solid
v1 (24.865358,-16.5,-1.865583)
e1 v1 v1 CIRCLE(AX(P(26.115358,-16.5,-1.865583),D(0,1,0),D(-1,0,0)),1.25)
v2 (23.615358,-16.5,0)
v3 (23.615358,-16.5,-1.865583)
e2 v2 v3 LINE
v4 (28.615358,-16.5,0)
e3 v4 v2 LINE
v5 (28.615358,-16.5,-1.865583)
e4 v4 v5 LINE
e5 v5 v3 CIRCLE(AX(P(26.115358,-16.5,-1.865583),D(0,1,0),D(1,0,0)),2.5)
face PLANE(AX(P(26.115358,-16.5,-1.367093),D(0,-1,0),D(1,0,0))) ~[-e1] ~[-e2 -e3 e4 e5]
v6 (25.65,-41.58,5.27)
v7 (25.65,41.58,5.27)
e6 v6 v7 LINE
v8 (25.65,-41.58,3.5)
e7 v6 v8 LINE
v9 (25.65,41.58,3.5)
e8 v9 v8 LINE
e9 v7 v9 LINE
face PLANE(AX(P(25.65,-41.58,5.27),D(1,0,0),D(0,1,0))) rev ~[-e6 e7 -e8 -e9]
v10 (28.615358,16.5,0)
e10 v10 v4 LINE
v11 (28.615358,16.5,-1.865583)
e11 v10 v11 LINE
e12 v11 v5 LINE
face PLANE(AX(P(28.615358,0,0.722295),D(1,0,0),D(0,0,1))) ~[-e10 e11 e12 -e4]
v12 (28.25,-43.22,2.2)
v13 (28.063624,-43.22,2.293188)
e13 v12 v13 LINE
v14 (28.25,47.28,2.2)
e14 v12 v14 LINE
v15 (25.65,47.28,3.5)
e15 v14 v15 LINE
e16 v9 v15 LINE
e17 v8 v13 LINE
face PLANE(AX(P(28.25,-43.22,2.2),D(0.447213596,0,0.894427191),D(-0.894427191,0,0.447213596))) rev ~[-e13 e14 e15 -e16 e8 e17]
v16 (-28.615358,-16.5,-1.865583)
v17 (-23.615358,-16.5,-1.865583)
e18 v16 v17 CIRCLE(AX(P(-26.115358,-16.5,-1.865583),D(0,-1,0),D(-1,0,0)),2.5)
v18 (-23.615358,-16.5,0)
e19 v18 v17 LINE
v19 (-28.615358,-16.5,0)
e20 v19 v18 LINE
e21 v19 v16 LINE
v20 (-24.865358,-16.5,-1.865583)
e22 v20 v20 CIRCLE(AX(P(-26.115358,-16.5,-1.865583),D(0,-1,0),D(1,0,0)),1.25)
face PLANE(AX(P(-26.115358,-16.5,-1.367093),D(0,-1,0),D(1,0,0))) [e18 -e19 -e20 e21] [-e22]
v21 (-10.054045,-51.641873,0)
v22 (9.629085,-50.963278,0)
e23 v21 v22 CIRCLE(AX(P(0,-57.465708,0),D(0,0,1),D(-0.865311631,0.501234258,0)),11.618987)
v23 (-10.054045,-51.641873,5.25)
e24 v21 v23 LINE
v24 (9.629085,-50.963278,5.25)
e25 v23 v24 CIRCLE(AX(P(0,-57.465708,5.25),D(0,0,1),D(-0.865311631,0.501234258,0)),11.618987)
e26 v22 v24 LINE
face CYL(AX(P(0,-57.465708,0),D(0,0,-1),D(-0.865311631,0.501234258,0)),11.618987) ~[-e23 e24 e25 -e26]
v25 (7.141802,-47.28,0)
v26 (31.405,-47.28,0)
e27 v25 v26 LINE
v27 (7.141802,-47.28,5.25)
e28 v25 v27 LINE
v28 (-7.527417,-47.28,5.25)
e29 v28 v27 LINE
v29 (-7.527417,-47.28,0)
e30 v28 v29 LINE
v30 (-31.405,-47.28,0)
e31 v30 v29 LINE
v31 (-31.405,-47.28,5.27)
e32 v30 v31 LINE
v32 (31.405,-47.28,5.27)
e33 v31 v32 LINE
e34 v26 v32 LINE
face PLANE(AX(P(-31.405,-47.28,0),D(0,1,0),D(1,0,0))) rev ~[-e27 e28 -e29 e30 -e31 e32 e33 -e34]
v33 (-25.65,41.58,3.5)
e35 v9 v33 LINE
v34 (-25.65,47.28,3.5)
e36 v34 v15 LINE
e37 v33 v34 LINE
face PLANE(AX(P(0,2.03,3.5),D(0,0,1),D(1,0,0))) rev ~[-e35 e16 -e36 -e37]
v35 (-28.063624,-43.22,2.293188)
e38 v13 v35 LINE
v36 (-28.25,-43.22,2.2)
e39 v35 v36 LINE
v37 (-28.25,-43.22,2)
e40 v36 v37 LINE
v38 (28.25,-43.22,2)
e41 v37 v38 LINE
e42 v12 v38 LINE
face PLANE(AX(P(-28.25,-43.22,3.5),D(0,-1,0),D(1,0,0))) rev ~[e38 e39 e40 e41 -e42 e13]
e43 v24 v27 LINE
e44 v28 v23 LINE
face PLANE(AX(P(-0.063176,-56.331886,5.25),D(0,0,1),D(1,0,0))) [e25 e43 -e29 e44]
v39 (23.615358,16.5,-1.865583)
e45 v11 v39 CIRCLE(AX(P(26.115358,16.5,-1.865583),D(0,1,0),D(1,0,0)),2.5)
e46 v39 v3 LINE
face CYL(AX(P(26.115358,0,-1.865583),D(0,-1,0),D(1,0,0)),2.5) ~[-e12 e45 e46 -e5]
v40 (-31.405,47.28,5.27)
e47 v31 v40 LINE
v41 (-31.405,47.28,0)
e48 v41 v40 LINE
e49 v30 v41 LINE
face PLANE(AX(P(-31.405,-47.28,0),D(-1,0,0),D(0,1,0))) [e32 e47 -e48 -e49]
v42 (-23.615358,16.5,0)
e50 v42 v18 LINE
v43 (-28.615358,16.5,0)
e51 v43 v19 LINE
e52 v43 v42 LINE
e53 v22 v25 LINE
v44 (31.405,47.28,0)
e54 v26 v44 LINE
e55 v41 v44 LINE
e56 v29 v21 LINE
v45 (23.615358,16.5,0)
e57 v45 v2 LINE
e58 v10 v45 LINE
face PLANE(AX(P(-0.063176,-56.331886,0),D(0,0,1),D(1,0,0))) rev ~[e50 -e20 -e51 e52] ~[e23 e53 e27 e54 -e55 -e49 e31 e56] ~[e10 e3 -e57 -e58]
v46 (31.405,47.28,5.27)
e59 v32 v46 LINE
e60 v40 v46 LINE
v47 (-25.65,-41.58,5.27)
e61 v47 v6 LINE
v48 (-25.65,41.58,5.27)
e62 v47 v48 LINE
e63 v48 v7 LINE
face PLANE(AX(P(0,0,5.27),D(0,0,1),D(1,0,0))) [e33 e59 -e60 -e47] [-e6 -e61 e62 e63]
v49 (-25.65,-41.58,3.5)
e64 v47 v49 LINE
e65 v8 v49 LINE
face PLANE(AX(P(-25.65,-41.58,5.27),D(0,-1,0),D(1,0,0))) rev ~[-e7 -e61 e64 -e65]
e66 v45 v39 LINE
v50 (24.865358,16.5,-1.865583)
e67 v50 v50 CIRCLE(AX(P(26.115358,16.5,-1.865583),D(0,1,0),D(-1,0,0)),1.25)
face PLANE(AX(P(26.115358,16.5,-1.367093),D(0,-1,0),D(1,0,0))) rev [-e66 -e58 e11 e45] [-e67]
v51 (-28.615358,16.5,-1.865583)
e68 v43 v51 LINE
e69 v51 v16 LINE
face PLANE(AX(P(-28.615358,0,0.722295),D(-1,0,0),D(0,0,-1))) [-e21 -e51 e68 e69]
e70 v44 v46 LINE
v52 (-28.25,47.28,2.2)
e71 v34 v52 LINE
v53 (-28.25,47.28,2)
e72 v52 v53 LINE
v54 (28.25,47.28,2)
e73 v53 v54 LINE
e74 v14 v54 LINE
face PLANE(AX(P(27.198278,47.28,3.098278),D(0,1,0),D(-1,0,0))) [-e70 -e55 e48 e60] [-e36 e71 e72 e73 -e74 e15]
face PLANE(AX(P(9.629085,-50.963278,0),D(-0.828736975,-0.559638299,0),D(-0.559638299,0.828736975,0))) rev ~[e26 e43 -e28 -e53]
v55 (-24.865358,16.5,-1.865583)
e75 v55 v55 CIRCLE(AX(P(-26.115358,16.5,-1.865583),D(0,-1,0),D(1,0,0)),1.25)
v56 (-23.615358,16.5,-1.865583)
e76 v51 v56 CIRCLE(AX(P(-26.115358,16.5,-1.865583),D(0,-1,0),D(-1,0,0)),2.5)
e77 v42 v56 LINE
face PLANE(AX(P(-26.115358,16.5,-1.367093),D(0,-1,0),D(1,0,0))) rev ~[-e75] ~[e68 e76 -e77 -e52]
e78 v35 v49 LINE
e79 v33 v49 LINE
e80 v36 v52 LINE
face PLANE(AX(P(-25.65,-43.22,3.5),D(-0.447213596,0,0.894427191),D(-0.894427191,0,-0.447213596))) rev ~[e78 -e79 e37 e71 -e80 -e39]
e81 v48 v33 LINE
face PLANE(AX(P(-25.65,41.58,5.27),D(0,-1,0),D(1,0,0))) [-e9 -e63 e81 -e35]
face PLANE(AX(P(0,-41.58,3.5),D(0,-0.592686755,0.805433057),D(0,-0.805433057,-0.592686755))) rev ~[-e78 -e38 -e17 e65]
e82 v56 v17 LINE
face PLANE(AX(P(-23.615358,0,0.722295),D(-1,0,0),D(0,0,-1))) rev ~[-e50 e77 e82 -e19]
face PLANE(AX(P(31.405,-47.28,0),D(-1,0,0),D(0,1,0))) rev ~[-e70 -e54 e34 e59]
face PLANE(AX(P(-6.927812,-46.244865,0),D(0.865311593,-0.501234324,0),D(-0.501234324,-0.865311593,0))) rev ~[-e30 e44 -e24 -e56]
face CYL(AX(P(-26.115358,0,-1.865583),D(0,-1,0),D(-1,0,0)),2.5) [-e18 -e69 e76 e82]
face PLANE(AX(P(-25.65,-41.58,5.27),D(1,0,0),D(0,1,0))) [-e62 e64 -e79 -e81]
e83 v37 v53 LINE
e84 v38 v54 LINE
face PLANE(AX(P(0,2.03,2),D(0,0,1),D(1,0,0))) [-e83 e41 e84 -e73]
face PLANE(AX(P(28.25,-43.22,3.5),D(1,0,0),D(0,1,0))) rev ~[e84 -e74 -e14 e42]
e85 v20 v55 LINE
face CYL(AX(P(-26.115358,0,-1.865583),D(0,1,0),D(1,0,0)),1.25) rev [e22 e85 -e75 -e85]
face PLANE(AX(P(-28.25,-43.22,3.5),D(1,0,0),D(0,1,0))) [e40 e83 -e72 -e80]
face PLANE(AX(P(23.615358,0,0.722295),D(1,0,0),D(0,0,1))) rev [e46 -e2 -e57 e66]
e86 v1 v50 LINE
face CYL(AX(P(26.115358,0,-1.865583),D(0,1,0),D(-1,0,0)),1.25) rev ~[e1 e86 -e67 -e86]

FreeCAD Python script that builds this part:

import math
import FreeCAD as App
import Part
import Sketcher

V = App.Vector
Q = App.Units.Quantity


def add_polygon(sketch, points):
    """Adds a closed chain of lines whose ends are joined by coincident constraints."""
    first, n = sketch.GeometryCount, len(points)
    for a, b in zip(points, points[1:] + points[:1]):
        sketch.addGeometry(Part.LineSegment(App.Vector(*a, 0), App.Vector(*b, 0)), False)
    for i in range(n):
        sketch.addConstraint(Sketcher.Constraint("Coincident", first + i, 2, first + (i + 1) % n, 1))

doc = App.newDocument("Part")
params = doc.addObject("Spreadsheet::Sheet", "Params")
for row, (alias, value) in enumerate([
    ("sketch1_width", "62.81 mm"),
    ("sketch1_height", "94.56 mm"),
    ("pad1_length", "5.27 mm"),
    ("sketch2_width", "51.3 mm"),
    ("sketch2_height", "83.16 mm"),
    ("pocket1_length", "3.27 mm"),
    ("sketch3_width", "56.5 mm"),
    ("sketch3_height", "90.5 mm"),
    ("pocket2_length", "1.5 mm"),
    ("sketch4_width", "2.6 mm"),
    ("sketch4_height", "1.3 mm"),
    ("pad2_length", "90.5 mm"),
    ("sketch5_width", "2.6 mm"),
    ("sketch5_height", "1.3 mm"),
    ("pad3_length", "90.5 mm"),
    ("sketch6_width", "1.64 mm"),
    ("pad4_length", "57 mm"),
    ("sketch7_diameter", "2.5 mm"),
    ("sketch7_radius", "2.5 mm"),
    ("pad5_length", "33 mm"),
    ("pad6_length", "5.25 mm"),
], start=1):
    params.set(f"A{row}", alias)
    params.set(f"B{row}", "=" + value)
    params.setAlias(f"B{row}", alias)

body = doc.addObject("PartDesign::Body", "Body")

# Sketch on XY plane
sketch1 = doc.addObject("Sketcher::SketchObject", "Sketch")
body.addObject(sketch1)
sketch1.AttachmentSupport = (doc.XY_Plane, [""])
sketch1.MapMode = "FlatFace"
add_polygon(sketch1, [(-31, 47), (-31, -47), (31, -47), (31, 47)])  # lines 0-3
sketch1.addConstraint([
    Sketcher.Constraint("Vertical", 0),
    Sketcher.Constraint("Horizontal", 1),
    Sketcher.Constraint("Vertical", 2),
    Sketcher.Constraint("Horizontal", 3),
    Sketcher.Constraint("Symmetric", 0, 2, 2, 2, -1, 1),
    Sketcher.Constraint("DistanceX", 1, 1, 1, 2, Q("62.81 mm")),
    Sketcher.Constraint("DistanceY", 0, 2, 0, 1, Q("94.56 mm")),
])
sketch1.setExpression("Constraints[9]", "Params.sketch1_width")
sketch1.setExpression("Constraints[10]", "Params.sketch1_height")
pad1 = doc.addObject("PartDesign::Pad", "Pad")
body.addObject(pad1)
pad1.Profile = sketch1
pad1.setExpression("Length", "Params.pad1_length")

# Sketch on XY plane
sketch2 = doc.addObject("Sketcher::SketchObject", "Sketch001")
body.addObject(sketch2)
sketch2.AttachmentSupport = (doc.XY_Plane, [""])
sketch2.MapMode = "FlatFace"
sketch2.AttachmentOffset = App.Placement(V(0, 0, 5.27), App.Rotation())
add_polygon(sketch2, [(-26, 42), (-26, -42), (26, -42), (26, 42)])  # lines 0-3
sketch2.addConstraint([
    Sketcher.Constraint("Vertical", 0),
    Sketcher.Constraint("Horizontal", 1),
    Sketcher.Constraint("Vertical", 2),
    Sketcher.Constraint("Horizontal", 3),
    Sketcher.Constraint("Symmetric", 0, 2, 2, 2, -1, 1),
    Sketcher.Constraint("DistanceX", 1, 1, 1, 2, Q("51.3 mm")),
    Sketcher.Constraint("DistanceY", 0, 2, 0, 1, Q("83.16 mm")),
])
sketch2.setExpression("Constraints[9]", "Params.sketch2_width")
sketch2.setExpression("Constraints[10]", "Params.sketch2_height")
pocket1 = doc.addObject("PartDesign::Pocket", "Pocket")
body.addObject(pocket1)
pocket1.Profile = sketch2
pocket1.setExpression("Length", "Params.pocket1_length")

# Sketch on XY plane
sketch3 = doc.addObject("Sketcher::SketchObject", "Sketch002")
body.addObject(sketch3)
sketch3.AttachmentSupport = (doc.XY_Plane, [""])
sketch3.MapMode = "FlatFace"
sketch3.AttachmentOffset = App.Placement(V(0, 0, 3.5), App.Rotation())
add_polygon(sketch3, [(-28, 47), (-28, -43), (28, -43), (28, 47)])  # lines 0-3
sketch3.addConstraint([
    Sketcher.Constraint("Vertical", 0),
    Sketcher.Constraint("Horizontal", 1),
    Sketcher.Constraint("Vertical", 2),
    Sketcher.Constraint("Horizontal", 3),
    Sketcher.Constraint("DistanceX", 1, 1, 1, 2, Q("56.5 mm")),
    Sketcher.Constraint("DistanceY", 0, 2, 0, 1, Q("90.5 mm")),
    Sketcher.Constraint("DistanceX", 0, 2, -1, 1, Q("28.25 mm")),
    Sketcher.Constraint("DistanceY", 0, 2, -1, 1, Q("43.22 mm")),
])
sketch3.setExpression("Constraints[8]", "Params.sketch3_width")
sketch3.setExpression("Constraints[9]", "Params.sketch3_height")
pocket2 = doc.addObject("PartDesign::Pocket", "Pocket001")
body.addObject(pocket2)
pocket2.Profile = sketch3
pocket2.setExpression("Length", "Params.pocket2_length")

# Sketch on XZ plane
sketch4 = doc.addObject("Sketcher::SketchObject", "Sketch003")
body.addObject(sketch4)
sketch4.AttachmentSupport = (doc.XZ_Plane, [""])
sketch4.MapMode = "FlatFace"
sketch4.AttachmentOffset = App.Placement(V(0, 0, 43.22), App.Rotation())
add_polygon(sketch4, [(-28.2, 2.2), (-25.6, 3.5), (-28.2, 3.5)])  # lines 0-2
sketch4.addConstraint([
    Sketcher.Constraint("Horizontal", 1),
    Sketcher.Constraint("Vertical", 2),
    Sketcher.Constraint("DistanceX", 1, 2, 1, 1, Q("2.6 mm")),
    Sketcher.Constraint("DistanceY", 2, 2, 2, 1, Q("1.3 mm")),
    Sketcher.Constraint("DistanceY", -1, 1, 0, 2, Q("3.5 mm")),
    Sketcher.Constraint("DistanceX", 0, 2, -1, 1, Q("25.65 mm")),
])
sketch4.setExpression("Constraints[5]", "Params.sketch4_width")
sketch4.setExpression("Constraints[6]", "Params.sketch4_height")
pad2 = doc.addObject("PartDesign::Pad", "Pad001")
body.addObject(pad2)
pad2.Profile = sketch4
pad2.setExpression("Length", "Params.pad2_length")
pad2.Reversed = True

# Sketch on XZ plane
sketch5 = doc.addObject("Sketcher::SketchObject", "Sketch004")
body.addObject(sketch5)
sketch5.AttachmentSupport = (doc.XZ_Plane, [""])
sketch5.MapMode = "FlatFace"
sketch5.AttachmentOffset = App.Placement(V(0, 0, 43.22), App.Rotation())
add_polygon(sketch5, [(28.2, 3.5), (25.6, 3.5), (28.2, 2.2)])  # lines 0-2
sketch5.addConstraint([
    Sketcher.Constraint("Horizontal", 0),
    Sketcher.Constraint("Vertical", 2),
    Sketcher.Constraint("DistanceX", 0, 2, 0, 1, Q("2.6 mm")),
    Sketcher.Constraint("DistanceY", 2, 1, 2, 2, Q("1.3 mm")),
    Sketcher.Constraint("DistanceY", -1, 1, 0, 2, Q("3.5 mm")),
    Sketcher.Constraint("DistanceX", -1, 1, 0, 2, Q("25.65 mm")),
])
sketch5.setExpression("Constraints[5]", "Params.sketch5_width")
sketch5.setExpression("Constraints[6]", "Params.sketch5_height")
pad3 = doc.addObject("PartDesign::Pad", "Pad002")
body.addObject(pad3)
pad3.Profile = sketch5
pad3.setExpression("Length", "Params.pad3_length")
pad3.Reversed = True

# Sketch on YZ plane
sketch6 = doc.addObject("Sketcher::SketchObject", "Sketch005")
body.addObject(sketch6)
sketch6.AttachmentSupport = (doc.YZ_Plane, [""])
sketch6.MapMode = "FlatFace"
add_polygon(sketch6, [(-43.2, 2.3), (-41.6, 3.5), (-43.2, 3.5)])  # lines 0-2
sketch6.addConstraint([
    Sketcher.Constraint("Horizontal", 1),
    Sketcher.Constraint("Vertical", 2),
    Sketcher.Constraint("DistanceX", 1, 2, 1, 1, Q("1.64 mm")),
    Sketcher.Constraint("DistanceY", -1, 1, 0, 2, Q("3.5 mm")),
    Sketcher.Constraint("DistanceX", 0, 2, -1, 1, Q("41.58 mm")),
    Sketcher.Constraint("Distance", 0, Q("2.036172 mm")),
])
sketch6.setExpression("Constraints[5]", "Params.sketch6_width")
pad4 = doc.addObject("PartDesign::Pad", "Pad003")
body.addObject(pad4)
pad4.Profile = sketch6
pad4.setExpression("Length", "Params.pad4_length")
pad4.Midplane = True

# Sketch on XZ plane
sketch7 = doc.addObject("Sketcher::SketchObject", "Sketch006")
body.addObject(sketch7)
sketch7.AttachmentSupport = (doc.XZ_Plane, [""])
sketch7.MapMode = "FlatFace"
sketch7.addGeometry([
    Part.LineSegment(V(-28.6, 0.7, 0), V(-28.6, -1.9, 0)),  # 0
    Part.ArcOfCircle(Part.Circle(V(-26.1, -1.9, 0), V(0, 0, 1), 2.5), math.radians(180), math.radians(360)),  # 1
    Part.LineSegment(V(-23.6, -1.9, 0), V(-23.6, 0.7, 0)),  # 2
    Part.LineSegment(V(-23.6, 0.7, 0), V(-28.6, 0.7, 0)),  # 3
    Part.Circle(V(-26.1, -1.9, 0), V(0, 0, 1), 1.2),  # 4
], False)
sketch7.addConstraint([
    Sketcher.Constraint("Tangent", 0, 2, 1, 1),
    Sketcher.Constraint("Tangent", 1, 2, 2, 1),
    Sketcher.Constraint("Coincident", 2, 2, 3, 1),
    Sketcher.Constraint("Coincident", 3, 2, 0, 1),
    Sketcher.Constraint("Vertical", 0),
    Sketcher.Constraint("Vertical", 2),
    Sketcher.Constraint("Horizontal", 3),
    Sketcher.Constraint("Coincident", 4, 3, 1, 3),
    Sketcher.Constraint("Diameter", 4, Q("2.5 mm")),
    Sketcher.Constraint("Radius", 1, Q("2.5 mm")),
    Sketcher.Constraint("DistanceY", 0, 2, 0, 1, Q("2.587878 mm")),
    Sketcher.Constraint("DistanceX", 1, 3, -1, 1, Q("26.115358 mm")),
    Sketcher.Constraint("DistanceY", 1, 3, -1, 1, Q("1.865583 mm")),
])
sketch7.setExpression("Constraints[8]", "Params.sketch7_diameter")
sketch7.setExpression("Constraints[9]", "Params.sketch7_radius")
pad5 = doc.addObject("PartDesign::Pad", "Pad004")
body.addObject(pad5)
pad5.Profile = sketch7
pad5.setExpression("Length", "Params.pad5_length")
pad5.Midplane = True

# Sketch on XY plane
sketch8 = doc.addObject("Sketcher::SketchObject", "Sketch007")
body.addObject(sketch8)
sketch8.AttachmentSupport = (doc.XY_Plane, [""])
sketch8.MapMode = "FlatFace"
sketch8.addGeometry([
    Part.ArcOfCircle(Part.Circle(V(0, -57, 0), V(0, 0, 1), 12), math.radians(150), math.radians(394)),
    Part.LineSegment(V(10, -51, 0), V(6, -46, 0)),
    Part.LineSegment(V(6, -46, 0), V(-7, -46, 0)),
    Part.LineSegment(V(-7, -46, 0), V(-10, -52, 0)),
], False)
sketch8.addConstraint([
    Sketcher.Constraint("Tangent", 0, 2, 1, 1),
    Sketcher.Constraint("Coincident", 1, 2, 2, 1),
    Sketcher.Constraint("Coincident", 2, 2, 3, 1),
    Sketcher.Constraint("Tangent", 3, 2, 0, 1),
    Sketcher.Constraint("Horizontal", 2),
    Sketcher.Constraint("PointOnObject", 0, 3, -2),
    Sketcher.Constraint("Radius", 0, Q("11.618987 mm")),
    Sketcher.Constraint("Distance", 1, Q("5.693499 mm")),
    Sketcher.Constraint("DistanceX", 1, 2, 0, 2, Q("3.1863 mm")),
    Sketcher.Constraint("Distance", 3, Q("6.237069 mm")),
    Sketcher.Constraint("DistanceY", 0, 3, -1, 1, Q("57.465708 mm")),
])
pad6 = doc.addObject("PartDesign::Pad", "Pad005")
body.addObject(pad6)
pad6.Profile = sketch8
pad6.setExpression("Length", "Params.pad6_length")
doc.recompute()

mirrored = doc.addObject("PartDesign::Mirrored", "Mirrored")
body.addObject(mirrored)
mirrored.Originals = [pad5]
mirrored.MirrorPlane = (doc.YZ_Plane, [""])
body.Tip = mirrored

doc.recompute()
